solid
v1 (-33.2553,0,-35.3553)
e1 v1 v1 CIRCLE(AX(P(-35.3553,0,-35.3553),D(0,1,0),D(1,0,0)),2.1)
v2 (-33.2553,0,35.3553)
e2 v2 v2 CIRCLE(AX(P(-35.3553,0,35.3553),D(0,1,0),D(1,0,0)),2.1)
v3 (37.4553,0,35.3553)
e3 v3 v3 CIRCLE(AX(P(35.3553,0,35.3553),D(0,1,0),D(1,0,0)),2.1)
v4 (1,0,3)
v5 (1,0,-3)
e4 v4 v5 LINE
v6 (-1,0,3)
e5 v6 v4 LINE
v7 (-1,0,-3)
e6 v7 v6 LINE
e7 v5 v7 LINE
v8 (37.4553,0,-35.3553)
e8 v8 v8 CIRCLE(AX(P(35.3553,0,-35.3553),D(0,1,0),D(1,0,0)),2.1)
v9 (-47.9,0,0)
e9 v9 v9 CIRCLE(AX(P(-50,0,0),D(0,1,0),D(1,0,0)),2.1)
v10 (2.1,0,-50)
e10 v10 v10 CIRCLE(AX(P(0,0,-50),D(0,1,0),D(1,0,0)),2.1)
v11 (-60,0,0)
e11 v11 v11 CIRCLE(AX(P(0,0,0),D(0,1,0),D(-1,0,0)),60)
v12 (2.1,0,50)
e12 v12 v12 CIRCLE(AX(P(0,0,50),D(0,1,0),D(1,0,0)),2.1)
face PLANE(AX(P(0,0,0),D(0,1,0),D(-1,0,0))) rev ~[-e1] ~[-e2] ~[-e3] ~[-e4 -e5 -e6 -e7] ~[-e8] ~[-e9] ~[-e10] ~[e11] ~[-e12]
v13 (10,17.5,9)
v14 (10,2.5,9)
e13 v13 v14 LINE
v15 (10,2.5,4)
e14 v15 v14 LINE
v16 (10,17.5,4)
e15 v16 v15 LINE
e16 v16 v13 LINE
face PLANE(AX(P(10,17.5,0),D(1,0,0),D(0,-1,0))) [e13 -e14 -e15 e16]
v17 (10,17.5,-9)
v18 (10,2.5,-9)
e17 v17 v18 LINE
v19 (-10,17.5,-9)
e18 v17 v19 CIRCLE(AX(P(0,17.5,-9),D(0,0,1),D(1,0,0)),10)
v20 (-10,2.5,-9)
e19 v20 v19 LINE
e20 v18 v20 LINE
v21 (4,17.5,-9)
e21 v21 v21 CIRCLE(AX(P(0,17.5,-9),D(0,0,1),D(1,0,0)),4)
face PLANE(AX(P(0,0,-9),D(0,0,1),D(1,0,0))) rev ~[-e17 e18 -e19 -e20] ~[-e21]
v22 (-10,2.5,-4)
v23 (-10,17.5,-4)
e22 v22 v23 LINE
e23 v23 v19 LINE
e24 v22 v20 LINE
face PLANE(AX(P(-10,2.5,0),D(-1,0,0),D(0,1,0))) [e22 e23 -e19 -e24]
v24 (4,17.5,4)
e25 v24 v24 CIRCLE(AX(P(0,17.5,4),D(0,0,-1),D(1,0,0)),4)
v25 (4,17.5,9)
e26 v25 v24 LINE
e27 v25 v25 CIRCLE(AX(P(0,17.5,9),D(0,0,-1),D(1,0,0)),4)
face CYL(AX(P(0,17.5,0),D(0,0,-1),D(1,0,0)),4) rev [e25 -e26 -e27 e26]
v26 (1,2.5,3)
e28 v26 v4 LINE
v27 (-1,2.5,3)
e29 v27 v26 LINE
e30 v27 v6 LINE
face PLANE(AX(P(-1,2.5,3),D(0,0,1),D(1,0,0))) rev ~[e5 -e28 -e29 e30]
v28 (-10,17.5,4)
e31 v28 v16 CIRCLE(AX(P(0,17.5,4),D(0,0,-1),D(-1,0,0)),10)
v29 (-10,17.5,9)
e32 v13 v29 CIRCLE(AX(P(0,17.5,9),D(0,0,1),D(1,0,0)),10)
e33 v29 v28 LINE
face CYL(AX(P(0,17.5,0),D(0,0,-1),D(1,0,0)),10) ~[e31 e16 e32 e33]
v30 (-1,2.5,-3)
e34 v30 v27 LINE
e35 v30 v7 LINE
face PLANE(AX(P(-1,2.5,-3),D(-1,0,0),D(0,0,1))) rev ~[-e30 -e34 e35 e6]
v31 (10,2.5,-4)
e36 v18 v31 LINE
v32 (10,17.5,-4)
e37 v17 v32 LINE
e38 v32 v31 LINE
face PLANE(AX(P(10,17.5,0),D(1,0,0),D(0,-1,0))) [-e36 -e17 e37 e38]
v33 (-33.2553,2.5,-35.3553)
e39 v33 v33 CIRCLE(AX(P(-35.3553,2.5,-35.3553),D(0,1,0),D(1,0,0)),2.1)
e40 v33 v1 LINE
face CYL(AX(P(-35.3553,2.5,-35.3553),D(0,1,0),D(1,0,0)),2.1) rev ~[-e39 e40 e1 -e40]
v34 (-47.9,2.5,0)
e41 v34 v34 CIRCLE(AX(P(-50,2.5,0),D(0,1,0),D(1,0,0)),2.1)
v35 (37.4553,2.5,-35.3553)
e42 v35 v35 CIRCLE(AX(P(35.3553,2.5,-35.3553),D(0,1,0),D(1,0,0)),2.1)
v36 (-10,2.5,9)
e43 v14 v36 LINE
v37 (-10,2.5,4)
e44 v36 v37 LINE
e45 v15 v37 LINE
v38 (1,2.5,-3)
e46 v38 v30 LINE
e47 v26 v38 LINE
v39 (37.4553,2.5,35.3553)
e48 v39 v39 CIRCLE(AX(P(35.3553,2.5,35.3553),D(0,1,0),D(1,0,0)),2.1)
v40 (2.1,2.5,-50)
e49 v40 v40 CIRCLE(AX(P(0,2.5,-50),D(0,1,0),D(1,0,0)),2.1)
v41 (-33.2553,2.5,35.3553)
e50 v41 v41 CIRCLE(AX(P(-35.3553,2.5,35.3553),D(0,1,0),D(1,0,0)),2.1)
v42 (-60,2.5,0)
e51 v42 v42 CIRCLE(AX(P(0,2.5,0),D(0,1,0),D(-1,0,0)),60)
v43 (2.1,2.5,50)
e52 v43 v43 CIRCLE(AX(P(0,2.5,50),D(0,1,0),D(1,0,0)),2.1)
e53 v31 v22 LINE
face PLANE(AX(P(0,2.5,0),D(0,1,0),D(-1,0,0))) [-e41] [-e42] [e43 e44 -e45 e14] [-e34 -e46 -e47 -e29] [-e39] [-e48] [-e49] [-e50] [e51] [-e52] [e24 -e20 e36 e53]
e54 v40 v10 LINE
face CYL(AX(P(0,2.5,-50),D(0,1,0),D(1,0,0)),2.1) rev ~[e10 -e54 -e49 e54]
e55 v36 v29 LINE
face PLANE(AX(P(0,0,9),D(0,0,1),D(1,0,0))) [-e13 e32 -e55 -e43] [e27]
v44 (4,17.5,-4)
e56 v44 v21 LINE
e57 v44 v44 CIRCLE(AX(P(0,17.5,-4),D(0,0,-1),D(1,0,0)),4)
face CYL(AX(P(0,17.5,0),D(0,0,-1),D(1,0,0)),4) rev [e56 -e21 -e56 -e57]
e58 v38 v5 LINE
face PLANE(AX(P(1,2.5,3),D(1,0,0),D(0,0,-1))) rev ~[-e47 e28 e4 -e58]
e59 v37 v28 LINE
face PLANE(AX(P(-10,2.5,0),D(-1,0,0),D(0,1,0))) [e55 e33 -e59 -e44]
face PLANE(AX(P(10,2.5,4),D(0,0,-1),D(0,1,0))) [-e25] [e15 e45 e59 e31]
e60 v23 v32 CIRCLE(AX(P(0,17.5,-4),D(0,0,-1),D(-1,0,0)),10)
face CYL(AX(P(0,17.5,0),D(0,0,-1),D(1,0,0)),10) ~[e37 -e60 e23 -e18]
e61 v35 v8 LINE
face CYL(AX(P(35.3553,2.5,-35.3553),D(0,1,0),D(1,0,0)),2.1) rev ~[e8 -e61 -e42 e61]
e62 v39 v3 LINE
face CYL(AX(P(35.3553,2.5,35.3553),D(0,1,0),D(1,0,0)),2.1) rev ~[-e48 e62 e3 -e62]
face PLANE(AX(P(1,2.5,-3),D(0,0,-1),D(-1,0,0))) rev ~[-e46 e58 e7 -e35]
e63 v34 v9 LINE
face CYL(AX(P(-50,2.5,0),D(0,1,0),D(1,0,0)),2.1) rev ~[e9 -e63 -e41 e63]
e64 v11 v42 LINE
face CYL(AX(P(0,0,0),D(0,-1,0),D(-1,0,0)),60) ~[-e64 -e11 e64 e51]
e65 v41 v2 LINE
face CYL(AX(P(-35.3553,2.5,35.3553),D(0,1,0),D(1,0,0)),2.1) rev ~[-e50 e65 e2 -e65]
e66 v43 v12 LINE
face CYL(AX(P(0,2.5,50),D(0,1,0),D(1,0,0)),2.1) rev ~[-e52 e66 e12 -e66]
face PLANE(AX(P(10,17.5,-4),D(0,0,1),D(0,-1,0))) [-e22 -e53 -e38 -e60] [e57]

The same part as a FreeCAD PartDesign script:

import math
import FreeCAD as App
import Part
import Sketcher
from FreeCAD import Vector
Q = App.Units.Quantity

doc = App.newDocument("Part")
body = doc.addObject("PartDesign::Body", "Body")

# Sketch on XZ plane
sketch1 = body.newObject("Sketcher::SketchObject", "Sketch")
sketch1.AttachmentSupport = (doc.getObject("XZ_Plane"), [""])
sketch1.MapMode = "FlatFace"
sketch1.addGeometry(Part.Circle(Vector(0, 0, 0), Vector(0, 0, 1), 60), False)
sketch1.addConstraint([
    Sketcher.Constraint("Coincident", 0, 3, -1, 1),
    Sketcher.Constraint("Diameter", 0, Q("120 mm")),
])
pad1 = body.newObject("PartDesign::Pad", "Pad")
pad1.Profile = sketch1
pad1.Length = 2.5
pad1.Reversed = True

# Sketch on XY plane
sketch2 = body.newObject("Sketcher::SketchObject", "Sketch001")
sketch2.AttachmentSupport = (doc.getObject("XY_Plane"), [""])
sketch2.MapMode = "FlatFace"
sketch2.addGeometry([
    Part.LineSegment(Vector(-10, 2.5, 0), Vector(10, 2.5, 0)),  # 0
    Part.LineSegment(Vector(10, 2.5, 0), Vector(10, 17.5, 0)),  # 1
    Part.ArcOfCircle(Part.Circle(Vector(0, 17.5, 0), Vector(0, 0, 1), 10), math.radians(0), math.radians(180)),  # 2
    Part.LineSegment(Vector(-10, 17.5, 0), Vector(-10, 2.5, 0)),  # 3
    Part.Circle(Vector(0, 17.5, 0), Vector(0, 0, 1), 4),  # 4
], False)
sketch2.addConstraint([
    Sketcher.Constraint("Coincident", 0, 2, 1, 1),
    Sketcher.Constraint("Tangent", 1, 2, 2, 1),
    Sketcher.Constraint("Tangent", 2, 2, 3, 1),
    Sketcher.Constraint("Coincident", 3, 2, 0, 1),
    Sketcher.Constraint("Horizontal", 0),
    Sketcher.Constraint("Vertical", 1),
    Sketcher.Constraint("Vertical", 3),
    Sketcher.Constraint("Coincident", 4, 3, 2, 3),
    Sketcher.Constraint("PointOnObject", 2, 3, -2),
    Sketcher.Constraint("Diameter", 4, Q("8 mm")),
    Sketcher.Constraint("Radius", 2, Q("10 mm")),
    Sketcher.Constraint("DistanceY", 1, 1, 1, 2, Q("15 mm")),
    Sketcher.Constraint("DistanceY", -1, 1, 2, 3, Q("17.5 mm")),
])
pad2 = body.newObject("PartDesign::Pad", "Pad001")
pad2.Profile = sketch2
pad2.Length = 18
pad2.Midplane = True

# Sketch on YZ plane
sketch3 = body.newObject("Sketcher::SketchObject", "Sketch002")
sketch3.AttachmentSupport = (doc.getObject("YZ_Plane"), [""])
sketch3.MapMode = "FlatFace"
sketch3.AttachmentOffset = App.Placement(Vector(0, 0, 10), App.Rotation())
sketch3.addGeometry([
    Part.LineSegment(Vector(2, -4, 0), Vector(28, -4, 0)),
    Part.LineSegment(Vector(28, -4, 0), Vector(28, 4, 0)),
    Part.LineSegment(Vector(28, 4, 0), Vector(2, 4, 0)),
    Part.LineSegment(Vector(2, 4, 0), Vector(2, -4, 0)),
], False)
sketch3.addConstraint([
    Sketcher.Constraint("Coincident", 0, 2, 1, 1),
    Sketcher.Constraint("Coincident", 1, 2, 2, 1),
    Sketcher.Constraint("Coincident", 2, 2, 3, 1),
    Sketcher.Constraint("Coincident", 3, 2, 0, 1),
    Sketcher.Constraint("Horizontal", 0),
    Sketcher.Constraint("Vertical", 1),
    Sketcher.Constraint("Horizontal", 2),
    Sketcher.Constraint("Vertical", 3),
    Sketcher.Constraint("DistanceX", 0, 1, 0, 2, Q("25 mm")),
    Sketcher.Constraint("DistanceY", 1, 1, 1, 2, Q("8 mm")),
    Sketcher.Constraint("DistanceY", 0, 2, -1, 1, Q("4 mm")),
    Sketcher.Constraint("DistanceX", -1, 1, 0, 2, Q("27.5 mm")),
])
pocket1 = body.newObject("PartDesign::Pocket", "Pocket")
pocket1.Profile = sketch3
pocket1.Length = 20

# Sketch on XZ plane
sketch4 = body.newObject("Sketcher::SketchObject", "Sketch003")
sketch4.AttachmentSupport = (doc.getObject("XZ_Plane"), [""])
sketch4.MapMode = "FlatFace"
sketch4.AttachmentOffset = App.Placement(Vector(0, 0, -2.5), App.Rotation())
sketch4.addGeometry([
    Part.LineSegment(Vector(1, 3, 0), Vector(1, -3, 0)),  # 0
    Part.LineSegment(Vector(1, -3, 0), Vector(-1, -3, 0)),  # 1
    Part.LineSegment(Vector(-1, -3, 0), Vector(-1, 3, 0)),  # 2
    Part.LineSegment(Vector(-1, 3, 0), Vector(1, 3, 0)),  # 3
    Part.Circle(Vector(0, 50, 0), Vector(0, 0, 1), 2.1),  # 4
    Part.Circle(Vector(35.4, 35.4, 0), Vector(0, 0, 1), 2.1),  # 5
    Part.Circle(Vector(35.4, -35.4, 0), Vector(0, 0, 1), 2.1),  # 6
    Part.Circle(Vector(0, -50, 0), Vector(0, 0, 1), 2.1),  # 7
    Part.Circle(Vector(-35.4, -35.4, 0), Vector(0, 0, 1), 2.1),  # 8
    Part.Circle(Vector(-50, 0, 0), Vector(0, 0, 1), 2.1),  # 9
    Part.Circle(Vector(-35.4, 35.4, 0), Vector(0, 0, 1), 2.1),  # 10
], False)
sketch4.addConstraint([
    Sketcher.Constraint("Coincident", 0, 2, 1, 1),
    Sketcher.Constraint("Coincident", 1, 2, 2, 1),
    Sketcher.Constraint("Coincident", 2, 2, 3, 1),
    Sketcher.Constraint("Coincident", 3, 2, 0, 1),
    Sketcher.Constraint("Vertical", 0),
    Sketcher.Constraint("Horizontal", 1),
    Sketcher.Constraint("Vertical", 2),
    Sketcher.Constraint("Horizontal", 3),
    Sketcher.Constraint("Equal", 4, 5),
    Sketcher.Constraint("Equal", 5, 6),
    Sketcher.Constraint("Equal", 6, 7),
    Sketcher.Constraint("Equal", 7, 8),
    Sketcher.Constraint("Equal", 8, 9),
    Sketcher.Constraint("Equal", 9, 10),
    Sketcher.Constraint("Symmetric", 4, 3, 7, 3, -1, 1),
    Sketcher.Constraint("Symmetric", 5, 3, 8, 3, -1, 1),
    Sketcher.Constraint("Symmetric", 6, 3, 10, 3, -1, 1),
    Sketcher.Constraint("Symmetric", 0, 2, 2, 2, -1, 1),
    Sketcher.Constraint("Symmetric", 6, 3, 8, 3, -2),
    Sketcher.Constraint("PointOnObject", 4, 3, -2),
    Sketcher.Constraint("PointOnObject", 9, 3, -1),
    Sketcher.Constraint("Diameter", 4, Q("4.2 mm")),
    Sketcher.Constraint("DistanceX", 1, 2, 1, 1, Q("2 mm")),
    Sketcher.Constraint("DistanceY", 0, 2, 0, 1, Q("6 mm")),
    Sketcher.Constraint("DistanceY", -1, 1, 4, 3, Q("50 mm")),
    Sketcher.Constraint("DistanceX", 9, 3, -1, 1, Q("50 mm")),
    Sketcher.Constraint("DistanceX", -1, 1, 5, 3, Q("35.3553 mm")),
    Sketcher.Constraint("DistanceY", -1, 1, 5, 3, Q("35.3553 mm")),
])
pocket2 = body.newObject("PartDesign::Pocket", "Pocket001")
pocket2.Profile = sketch4
pocket2.Length = 20
pocket2.Reversed = True

doc.recompute()
